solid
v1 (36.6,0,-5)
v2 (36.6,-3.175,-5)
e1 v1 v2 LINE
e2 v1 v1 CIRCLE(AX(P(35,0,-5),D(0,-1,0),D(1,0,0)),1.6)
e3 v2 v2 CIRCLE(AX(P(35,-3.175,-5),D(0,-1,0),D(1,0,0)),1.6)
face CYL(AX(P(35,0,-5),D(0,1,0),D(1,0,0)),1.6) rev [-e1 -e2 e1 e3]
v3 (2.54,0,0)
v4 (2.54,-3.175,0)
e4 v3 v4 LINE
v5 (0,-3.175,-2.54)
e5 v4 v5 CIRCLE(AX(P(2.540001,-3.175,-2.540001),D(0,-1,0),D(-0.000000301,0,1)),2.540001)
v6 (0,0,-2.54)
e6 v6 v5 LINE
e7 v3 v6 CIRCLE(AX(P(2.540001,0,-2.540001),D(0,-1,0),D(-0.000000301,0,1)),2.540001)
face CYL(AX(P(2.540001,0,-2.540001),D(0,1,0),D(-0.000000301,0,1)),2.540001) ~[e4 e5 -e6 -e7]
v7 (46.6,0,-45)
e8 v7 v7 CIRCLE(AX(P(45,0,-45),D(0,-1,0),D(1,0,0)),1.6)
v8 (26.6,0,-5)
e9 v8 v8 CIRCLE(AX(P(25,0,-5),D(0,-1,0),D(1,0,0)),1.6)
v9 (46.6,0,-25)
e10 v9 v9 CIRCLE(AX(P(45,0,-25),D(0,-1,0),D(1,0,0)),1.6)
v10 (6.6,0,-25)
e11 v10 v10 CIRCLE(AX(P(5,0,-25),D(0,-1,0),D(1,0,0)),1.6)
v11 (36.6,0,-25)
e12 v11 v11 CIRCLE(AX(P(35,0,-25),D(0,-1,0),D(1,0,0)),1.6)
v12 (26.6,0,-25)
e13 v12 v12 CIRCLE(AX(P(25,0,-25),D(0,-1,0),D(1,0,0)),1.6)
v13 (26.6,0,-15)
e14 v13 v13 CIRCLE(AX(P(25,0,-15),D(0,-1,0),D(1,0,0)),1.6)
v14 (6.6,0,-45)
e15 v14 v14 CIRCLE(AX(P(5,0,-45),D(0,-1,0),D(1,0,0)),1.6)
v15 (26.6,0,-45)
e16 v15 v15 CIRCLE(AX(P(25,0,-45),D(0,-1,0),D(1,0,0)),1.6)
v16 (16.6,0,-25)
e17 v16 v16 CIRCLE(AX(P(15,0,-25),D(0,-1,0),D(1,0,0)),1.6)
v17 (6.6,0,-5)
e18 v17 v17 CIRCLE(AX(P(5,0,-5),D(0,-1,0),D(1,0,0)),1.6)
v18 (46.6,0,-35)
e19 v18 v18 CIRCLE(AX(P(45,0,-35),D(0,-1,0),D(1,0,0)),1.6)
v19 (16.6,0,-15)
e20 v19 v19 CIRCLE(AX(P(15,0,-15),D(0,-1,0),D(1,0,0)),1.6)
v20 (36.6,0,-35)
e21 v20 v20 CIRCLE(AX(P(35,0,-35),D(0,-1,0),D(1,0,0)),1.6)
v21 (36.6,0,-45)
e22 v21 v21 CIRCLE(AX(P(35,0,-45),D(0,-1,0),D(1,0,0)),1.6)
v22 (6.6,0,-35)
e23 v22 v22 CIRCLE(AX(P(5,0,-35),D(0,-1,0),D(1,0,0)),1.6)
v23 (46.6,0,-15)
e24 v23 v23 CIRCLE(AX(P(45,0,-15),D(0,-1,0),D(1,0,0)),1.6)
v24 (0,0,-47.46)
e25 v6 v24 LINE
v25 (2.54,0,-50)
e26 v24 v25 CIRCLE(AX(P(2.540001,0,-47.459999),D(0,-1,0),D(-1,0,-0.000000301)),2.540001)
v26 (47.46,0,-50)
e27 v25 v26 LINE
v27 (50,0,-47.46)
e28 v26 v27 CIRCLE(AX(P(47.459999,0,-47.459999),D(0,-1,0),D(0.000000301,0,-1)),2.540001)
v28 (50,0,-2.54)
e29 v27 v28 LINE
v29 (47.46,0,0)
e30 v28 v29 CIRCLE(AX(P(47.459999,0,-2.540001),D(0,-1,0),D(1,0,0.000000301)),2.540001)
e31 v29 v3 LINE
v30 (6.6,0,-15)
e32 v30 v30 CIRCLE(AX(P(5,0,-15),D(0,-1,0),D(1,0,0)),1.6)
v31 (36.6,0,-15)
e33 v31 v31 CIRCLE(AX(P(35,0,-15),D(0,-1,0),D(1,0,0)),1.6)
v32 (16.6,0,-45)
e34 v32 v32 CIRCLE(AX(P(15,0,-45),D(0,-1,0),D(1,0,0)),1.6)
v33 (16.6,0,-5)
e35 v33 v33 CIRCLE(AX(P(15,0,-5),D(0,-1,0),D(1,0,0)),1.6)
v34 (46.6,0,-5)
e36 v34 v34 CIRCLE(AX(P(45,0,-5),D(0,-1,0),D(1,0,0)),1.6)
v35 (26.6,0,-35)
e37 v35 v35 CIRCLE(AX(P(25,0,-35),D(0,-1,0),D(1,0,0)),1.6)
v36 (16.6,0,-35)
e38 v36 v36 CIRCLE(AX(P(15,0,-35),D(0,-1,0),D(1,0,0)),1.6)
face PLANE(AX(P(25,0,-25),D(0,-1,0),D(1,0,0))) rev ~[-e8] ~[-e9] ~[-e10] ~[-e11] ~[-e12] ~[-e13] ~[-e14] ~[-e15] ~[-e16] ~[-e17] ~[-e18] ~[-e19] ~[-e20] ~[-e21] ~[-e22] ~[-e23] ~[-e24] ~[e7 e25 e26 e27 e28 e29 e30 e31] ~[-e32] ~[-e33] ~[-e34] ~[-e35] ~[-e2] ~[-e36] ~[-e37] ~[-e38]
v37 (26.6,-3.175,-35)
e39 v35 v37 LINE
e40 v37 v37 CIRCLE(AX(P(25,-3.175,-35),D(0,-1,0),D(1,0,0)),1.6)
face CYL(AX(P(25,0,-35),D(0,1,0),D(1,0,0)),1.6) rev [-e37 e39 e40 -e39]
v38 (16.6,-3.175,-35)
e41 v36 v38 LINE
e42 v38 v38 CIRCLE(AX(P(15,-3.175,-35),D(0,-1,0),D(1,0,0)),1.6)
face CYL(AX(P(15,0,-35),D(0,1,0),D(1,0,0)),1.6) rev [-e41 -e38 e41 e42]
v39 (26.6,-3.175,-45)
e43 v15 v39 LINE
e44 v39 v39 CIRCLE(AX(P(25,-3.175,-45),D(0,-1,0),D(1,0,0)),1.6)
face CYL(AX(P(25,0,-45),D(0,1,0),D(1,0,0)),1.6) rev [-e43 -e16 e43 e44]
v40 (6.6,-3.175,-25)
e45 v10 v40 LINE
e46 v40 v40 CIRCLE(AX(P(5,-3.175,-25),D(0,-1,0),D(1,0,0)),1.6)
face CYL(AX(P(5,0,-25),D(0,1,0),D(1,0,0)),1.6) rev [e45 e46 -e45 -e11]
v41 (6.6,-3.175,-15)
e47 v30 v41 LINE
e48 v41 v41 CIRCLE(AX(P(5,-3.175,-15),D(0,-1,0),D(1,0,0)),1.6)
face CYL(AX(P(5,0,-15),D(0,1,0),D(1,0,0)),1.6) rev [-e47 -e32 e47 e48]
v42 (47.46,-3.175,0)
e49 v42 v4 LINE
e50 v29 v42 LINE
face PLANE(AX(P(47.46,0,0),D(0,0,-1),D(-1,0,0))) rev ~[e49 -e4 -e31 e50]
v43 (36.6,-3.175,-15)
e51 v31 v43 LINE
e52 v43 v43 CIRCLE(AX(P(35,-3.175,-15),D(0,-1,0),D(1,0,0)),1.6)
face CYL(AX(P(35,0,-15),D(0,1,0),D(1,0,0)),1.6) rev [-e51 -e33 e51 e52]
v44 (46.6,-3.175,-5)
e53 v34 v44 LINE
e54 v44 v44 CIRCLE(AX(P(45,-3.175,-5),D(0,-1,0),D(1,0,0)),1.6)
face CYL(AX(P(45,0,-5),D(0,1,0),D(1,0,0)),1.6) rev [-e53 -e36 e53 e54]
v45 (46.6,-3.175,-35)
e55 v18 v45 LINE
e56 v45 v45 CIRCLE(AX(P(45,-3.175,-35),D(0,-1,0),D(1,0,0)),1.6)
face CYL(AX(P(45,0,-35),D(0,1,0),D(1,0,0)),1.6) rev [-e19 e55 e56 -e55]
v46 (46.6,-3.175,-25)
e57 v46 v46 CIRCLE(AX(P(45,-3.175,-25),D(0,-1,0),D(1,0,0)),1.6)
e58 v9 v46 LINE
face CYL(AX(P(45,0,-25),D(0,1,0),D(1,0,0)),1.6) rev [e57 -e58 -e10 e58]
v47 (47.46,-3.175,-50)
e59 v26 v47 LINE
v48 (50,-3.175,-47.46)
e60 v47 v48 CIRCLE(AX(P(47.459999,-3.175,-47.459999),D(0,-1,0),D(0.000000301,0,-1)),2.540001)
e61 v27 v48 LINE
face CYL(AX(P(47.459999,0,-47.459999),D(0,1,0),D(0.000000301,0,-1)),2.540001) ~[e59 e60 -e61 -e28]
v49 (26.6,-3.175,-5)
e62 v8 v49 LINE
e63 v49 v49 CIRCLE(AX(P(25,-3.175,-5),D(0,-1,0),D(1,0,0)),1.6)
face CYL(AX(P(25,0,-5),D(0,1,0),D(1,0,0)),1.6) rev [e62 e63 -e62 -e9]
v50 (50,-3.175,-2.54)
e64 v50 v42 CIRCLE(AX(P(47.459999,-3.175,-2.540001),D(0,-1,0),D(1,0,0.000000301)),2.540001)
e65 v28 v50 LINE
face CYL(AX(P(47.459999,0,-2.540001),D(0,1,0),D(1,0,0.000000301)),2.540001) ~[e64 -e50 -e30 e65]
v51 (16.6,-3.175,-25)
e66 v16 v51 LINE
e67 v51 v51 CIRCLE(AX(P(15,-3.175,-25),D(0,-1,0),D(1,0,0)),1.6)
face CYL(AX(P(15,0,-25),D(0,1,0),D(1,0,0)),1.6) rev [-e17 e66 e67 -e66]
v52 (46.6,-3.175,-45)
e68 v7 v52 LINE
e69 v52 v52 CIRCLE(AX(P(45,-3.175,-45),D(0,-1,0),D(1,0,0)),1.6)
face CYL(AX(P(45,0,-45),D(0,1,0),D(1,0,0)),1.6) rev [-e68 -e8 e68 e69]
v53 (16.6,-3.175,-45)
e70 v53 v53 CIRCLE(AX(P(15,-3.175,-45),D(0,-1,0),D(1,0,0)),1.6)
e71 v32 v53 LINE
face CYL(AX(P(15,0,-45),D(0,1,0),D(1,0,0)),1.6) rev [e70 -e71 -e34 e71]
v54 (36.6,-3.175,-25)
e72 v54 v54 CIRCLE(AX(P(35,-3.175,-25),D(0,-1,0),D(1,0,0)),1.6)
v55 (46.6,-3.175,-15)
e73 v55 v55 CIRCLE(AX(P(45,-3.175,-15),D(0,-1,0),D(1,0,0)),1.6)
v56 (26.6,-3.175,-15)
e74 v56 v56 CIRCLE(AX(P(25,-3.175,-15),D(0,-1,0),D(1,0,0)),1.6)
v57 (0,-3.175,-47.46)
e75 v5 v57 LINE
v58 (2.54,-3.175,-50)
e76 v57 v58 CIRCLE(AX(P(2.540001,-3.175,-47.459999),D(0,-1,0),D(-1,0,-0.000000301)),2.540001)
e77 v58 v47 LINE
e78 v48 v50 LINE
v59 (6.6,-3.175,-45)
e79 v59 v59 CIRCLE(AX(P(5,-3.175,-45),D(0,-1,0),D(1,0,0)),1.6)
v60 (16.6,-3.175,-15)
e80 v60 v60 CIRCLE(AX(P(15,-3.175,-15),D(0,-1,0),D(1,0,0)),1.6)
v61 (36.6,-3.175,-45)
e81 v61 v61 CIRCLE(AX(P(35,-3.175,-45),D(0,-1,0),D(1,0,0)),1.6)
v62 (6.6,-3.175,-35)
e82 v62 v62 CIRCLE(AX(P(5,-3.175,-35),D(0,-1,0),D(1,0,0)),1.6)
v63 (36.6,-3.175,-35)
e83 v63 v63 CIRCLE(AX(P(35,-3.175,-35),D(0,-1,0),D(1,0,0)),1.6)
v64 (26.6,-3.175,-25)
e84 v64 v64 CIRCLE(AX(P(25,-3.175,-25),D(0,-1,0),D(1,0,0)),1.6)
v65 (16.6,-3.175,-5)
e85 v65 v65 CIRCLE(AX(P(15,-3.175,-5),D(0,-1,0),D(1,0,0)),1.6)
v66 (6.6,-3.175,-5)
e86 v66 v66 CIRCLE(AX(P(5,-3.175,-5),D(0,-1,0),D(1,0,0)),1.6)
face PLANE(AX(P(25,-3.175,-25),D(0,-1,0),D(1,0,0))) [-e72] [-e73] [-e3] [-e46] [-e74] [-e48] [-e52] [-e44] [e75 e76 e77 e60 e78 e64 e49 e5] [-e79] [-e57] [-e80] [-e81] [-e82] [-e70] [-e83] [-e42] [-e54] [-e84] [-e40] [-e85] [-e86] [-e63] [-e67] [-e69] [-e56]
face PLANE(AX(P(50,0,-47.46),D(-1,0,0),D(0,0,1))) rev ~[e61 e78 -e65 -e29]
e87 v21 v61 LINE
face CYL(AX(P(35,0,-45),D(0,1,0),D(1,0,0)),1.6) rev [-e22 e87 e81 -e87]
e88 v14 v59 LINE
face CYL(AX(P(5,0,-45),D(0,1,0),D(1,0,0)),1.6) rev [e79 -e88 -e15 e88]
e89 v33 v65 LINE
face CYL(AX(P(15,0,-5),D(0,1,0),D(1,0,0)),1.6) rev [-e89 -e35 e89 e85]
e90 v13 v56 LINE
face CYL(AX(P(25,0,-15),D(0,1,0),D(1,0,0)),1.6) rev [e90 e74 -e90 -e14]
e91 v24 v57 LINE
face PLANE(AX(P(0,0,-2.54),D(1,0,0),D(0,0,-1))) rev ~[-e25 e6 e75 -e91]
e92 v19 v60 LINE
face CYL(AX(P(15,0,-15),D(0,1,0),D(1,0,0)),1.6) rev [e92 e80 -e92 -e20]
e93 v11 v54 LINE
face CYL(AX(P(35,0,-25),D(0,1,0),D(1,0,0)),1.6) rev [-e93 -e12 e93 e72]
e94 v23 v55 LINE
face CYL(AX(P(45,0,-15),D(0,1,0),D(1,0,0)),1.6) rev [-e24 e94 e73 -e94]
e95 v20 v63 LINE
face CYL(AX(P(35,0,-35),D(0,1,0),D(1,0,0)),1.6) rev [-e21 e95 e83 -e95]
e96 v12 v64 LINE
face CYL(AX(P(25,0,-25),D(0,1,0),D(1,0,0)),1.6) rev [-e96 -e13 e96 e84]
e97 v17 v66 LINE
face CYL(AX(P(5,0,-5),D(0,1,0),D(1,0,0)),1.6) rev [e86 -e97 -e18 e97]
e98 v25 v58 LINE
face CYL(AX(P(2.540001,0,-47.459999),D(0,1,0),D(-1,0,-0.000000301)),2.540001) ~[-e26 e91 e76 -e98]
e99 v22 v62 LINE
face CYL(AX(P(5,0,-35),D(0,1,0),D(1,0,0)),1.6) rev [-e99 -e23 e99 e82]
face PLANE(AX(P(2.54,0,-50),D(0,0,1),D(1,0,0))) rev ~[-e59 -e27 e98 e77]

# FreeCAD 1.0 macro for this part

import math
import FreeCAD as App
import Part
import Sketcher
from FreeCAD import Vector
Q = App.Units.Quantity

doc = App.newDocument("Part")
params = doc.addObject("Spreadsheet::Sheet", "Params")
for row, (alias, value) in enumerate([
    ("sketch1_radius", "0.1 in"),
    ("pad1_length", "0.125 in"),
], start=1):
    params.set(f"A{row}", alias)
    params.set(f"B{row}", "=" + value)
    params.setAlias(f"B{row}", alias)

body = doc.addObject("PartDesign::Body", "Body")

# Sketch on XZ plane
sketch1 = doc.addObject("Sketcher::SketchObject", "Sketch")
body.addObject(sketch1)
sketch1.AttachmentSupport = (doc.XZ_Plane, [""])
sketch1.MapMode = "FlatFace"
sketch1.addGeometry(Part.LineSegment(Vector(47.5, 0, 0), Vector(2.5, 0, 0)), False)
sketch1.addGeometry(Part.ArcOfCircle(Part.Circle(Vector(2.5, -2.5, 0), Vector(0, 0, 1), 2.5), math.radians(90), math.radians(180)), False)
sketch1.addGeometry(Part.LineSegment(Vector(0, -2.5, 0), Vector(0, -47.5, 0)), False)
sketch1.addGeometry(Part.ArcOfCircle(Part.Circle(Vector(2.5, -47.5, 0), Vector(0, 0, 1), 2.5), math.radians(-180), math.radians(-90)), False)
sketch1.addGeometry(Part.LineSegment(Vector(2.5, -50, 0), Vector(47.5, -50, 0)), False)
sketch1.addGeometry(Part.ArcOfCircle(Part.Circle(Vector(47.5, -47.5, 0), Vector(0, 0, 1), 2.5), math.radians(-90), math.radians(0)), False)
sketch1.addGeometry(Part.LineSegment(Vector(50, -47.5, 0), Vector(50, -2.5, 0)), False)
sketch1.addGeometry(Part.ArcOfCircle(Part.Circle(Vector(47.5, -2.5, 0), Vector(0, 0, 1), 2.5), math.radians(0), math.radians(90)), False)
sketch1.addGeometry(Part.Circle(Vector(5, -45, 0), Vector(0, 0, 1), 1.6), False)
sketch1.addGeometry(Part.Circle(Vector(15, -45, 0), Vector(0, 0, 1), 1.6), False)
sketch1.addGeometry(Part.Circle(Vector(5, -35, 0), Vector(0, 0, 1), 1.6), False)
sketch1.addGeometry(Part.Circle(Vector(15, -35, 0), Vector(0, 0, 1), 1.6), False)
sketch1.addGeometry(Part.Circle(Vector(25, -45, 0), Vector(0, 0, 1), 1.6), False)
sketch1.addGeometry(Part.Circle(Vector(35, -45, 0), Vector(0, 0, 1), 1.6), False)
sketch1.addGeometry(Part.Circle(Vector(45, -45, 0), Vector(0, 0, 1), 1.6), False)
sketch1.addGeometry(Part.Circle(Vector(25, -35, 0), Vector(0, 0, 1), 1.6), False)
sketch1.addGeometry(Part.Circle(Vector(35, -35, 0), Vector(0, 0, 1), 1.6), False)
sketch1.addGeometry(Part.Circle(Vector(45, -35, 0), Vector(0, 0, 1), 1.6), False)
sketch1.addGeometry(Part.Circle(Vector(5, -25, 0), Vector(0, 0, 1), 1.6), False)
sketch1.addGeometry(Part.Circle(Vector(5, -15, 0), Vector(0, 0, 1), 1.6), False)
sketch1.addGeometry(Part.Circle(Vector(15, -25, 0), Vector(0, 0, 1), 1.6), False)
sketch1.addGeometry(Part.Circle(Vector(15, -15, 0), Vector(0, 0, 1), 1.6), False)
sketch1.addGeometry(Part.Circle(Vector(5, -5, 0), Vector(0, 0, 1), 1.6), False)
sketch1.addGeometry(Part.Circle(Vector(15, -5, 0), Vector(0, 0, 1), 1.6), False)
sketch1.addGeometry(Part.Circle(Vector(25, -25, 0), Vector(0, 0, 1), 1.6), False)
sketch1.addGeometry(Part.Circle(Vector(35, -25, 0), Vector(0, 0, 1), 1.6), False)
sketch1.addGeometry(Part.Circle(Vector(25, -15, 0), Vector(0, 0, 1), 1.6), False)
sketch1.addGeometry(Part.Circle(Vector(35, -15, 0), Vector(0, 0, 1), 1.6), False)
sketch1.addGeometry(Part.Circle(Vector(45, -25, 0), Vector(0, 0, 1), 1.6), False)
sketch1.addGeometry(Part.Circle(Vector(45, -15, 0), Vector(0, 0, 1), 1.6), False)
sketch1.addGeometry(Part.Circle(Vector(25, -5, 0), Vector(0, 0, 1), 1.6), False)
sketch1.addGeometry(Part.Circle(Vector(35, -5, 0), Vector(0, 0, 1), 1.6), False)
sketch1.addGeometry(Part.Circle(Vector(45, -5, 0), Vector(0, 0, 1), 1.6), False)
sketch1.addConstraint(Sketcher.Constraint("Tangent", 0, 2, 1, 1))
sketch1.addConstraint(Sketcher.Constraint("Tangent", 1, 2, 2, 1))
sketch1.addConstraint(Sketcher.Constraint("Tangent", 2, 2, 3, 1))
sketch1.addConstraint(Sketcher.Constraint("Tangent", 3, 2, 4, 1))
sketch1.addConstraint(Sketcher.Constraint("Tangent", 4, 2, 5, 1))
sketch1.addConstraint(Sketcher.Constraint("Tangent", 5, 2, 6, 1))
sketch1.addConstraint(Sketcher.Constraint("Tangent", 6, 2, 7, 1))
sketch1.addConstraint(Sketcher.Constraint("Tangent", 7, 2, 0, 1))
sketch1.addConstraint(Sketcher.Constraint("Horizontal", 0))
sketch1.addConstraint(Sketcher.Constraint("Vertical", 2))
sketch1.addConstraint(Sketcher.Constraint("Horizontal", 4))
sketch1.addConstraint(Sketcher.Constraint("Vertical", 6))
sketch1.addConstraint(Sketcher.Constraint("Equal", 1, 3))
sketch1.addConstraint(Sketcher.Constraint("Equal", 3, 5))
sketch1.addConstraint(Sketcher.Constraint("Equal", 5, 7))
sketch1.addConstraint(Sketcher.Constraint("Equal", 8, 9))
sketch1.addConstraint(Sketcher.Constraint("Equal", 9, 10))
sketch1.addConstraint(Sketcher.Constraint("Equal", 10, 11))
sketch1.addConstraint(Sketcher.Constraint("Equal", 11, 12))
sketch1.addConstraint(Sketcher.Constraint("Equal", 12, 13))
sketch1.addConstraint(Sketcher.Constraint("Equal", 13, 14))
sketch1.addConstraint(Sketcher.Constraint("Equal", 14, 15))
sketch1.addConstraint(Sketcher.Constraint("Equal", 15, 16))
sketch1.addConstraint(Sketcher.Constraint("Equal", 16, 17))
sketch1.addConstraint(Sketcher.Constraint("Equal", 17, 18))
sketch1.addConstraint(Sketcher.Constraint("Equal", 18, 19))
sketch1.addConstraint(Sketcher.Constraint("Equal", 19, 20))
sketch1.addConstraint(Sketcher.Constraint("Equal", 20, 21))
sketch1.addConstraint(Sketcher.Constraint("Equal", 21, 22))
sketch1.addConstraint(Sketcher.Constraint("Equal", 22, 23))
sketch1.addConstraint(Sketcher.Constraint("Equal", 23, 24))
sketch1.addConstraint(Sketcher.Constraint("Equal", 24, 25))
sketch1.addConstraint(Sketcher.Constraint("Equal", 25, 26))
sketch1.addConstraint(Sketcher.Constraint("Equal", 26, 27))
sketch1.addConstraint(Sketcher.Constraint("Equal", 27, 28))
sketch1.addConstraint(Sketcher.Constraint("Equal", 28, 29))
sketch1.addConstraint(Sketcher.Constraint("Equal", 29, 30))
sketch1.addConstraint(Sketcher.Constraint("Equal", 30, 31))
sketch1.addConstraint(Sketcher.Constraint("Equal", 31, 32))
sketch1.addConstraint(Sketcher.Constraint("PointOnObject", 0, 2, -1))
sketch1.addConstraint(Sketcher.Constraint("PointOnObject", 1, 2, -2))
sketch1.addConstraint(Sketcher.Constraint("Horizontal", 8, 3, 9, 3))
sketch1.addConstraint(Sketcher.Constraint("Horizontal", 10, 3, 11, 3))
sketch1.addConstraint(Sketcher.Constraint("Horizontal", 9, 3, 12, 3))
sketch1.addConstraint(Sketcher.Constraint("Horizontal", 12, 3, 13, 3))
sketch1.addConstraint(Sketcher.Constraint("Horizontal", 13, 3, 14, 3))
sketch1.addConstraint(Sketcher.Constraint("Horizontal", 11, 3, 15, 3))
sketch1.addConstraint(Sketcher.Constraint("Horizontal", 15, 3, 16, 3))
sketch1.addConstraint(Sketcher.Constraint("Horizontal", 16, 3, 17, 3))
sketch1.addConstraint(Sketcher.Constraint("Horizontal", 18, 3, 20, 3))
sketch1.addConstraint(Sketcher.Constraint("Horizontal", 19, 3, 21, 3))
sketch1.addConstraint(Sketcher.Constraint("Horizontal", 22, 3, 23, 3))
sketch1.addConstraint(Sketcher.Constraint("Horizontal", 20, 3, 24, 3))
sketch1.addConstraint(Sketcher.Constraint("Horizontal", 24, 3, 25, 3))
sketch1.addConstraint(Sketcher.Constraint("Horizontal", 21, 3, 26, 3))
sketch1.addConstraint(Sketcher.Constraint("Horizontal", 26, 3, 27, 3))
sketch1.addConstraint(Sketcher.Constraint("Horizontal", 25, 3, 28, 3))
sketch1.addConstraint(Sketcher.Constraint("Horizontal", 27, 3, 29, 3))
sketch1.addConstraint(Sketcher.Constraint("Horizontal", 23, 3, 30, 3))
sketch1.addConstraint(Sketcher.Constraint("Horizontal", 30, 3, 31, 3))
sketch1.addConstraint(Sketcher.Constraint("Horizontal", 31, 3, 32, 3))
sketch1.addConstraint(Sketcher.Constraint("Vertical", 8, 3, 10, 3))
sketch1.addConstraint(Sketcher.Constraint("Vertical", 9, 3, 11, 3))
sketch1.addConstraint(Sketcher.Constraint("Vertical", 12, 3, 15, 3))
sketch1.addConstraint(Sketcher.Constraint("Vertical", 13, 3, 16, 3))
sketch1.addConstraint(Sketcher.Constraint("Vertical", 14, 3, 17, 3))
sketch1.addConstraint(Sketcher.Constraint("Vertical", 10, 3, 18, 3))
sketch1.addConstraint(Sketcher.Constraint("Vertical", 18, 3, 19, 3))
sketch1.addConstraint(Sketcher.Constraint("Vertical", 11, 3, 20, 3))
sketch1.addConstraint(Sketcher.Constraint("Vertical", 20, 3, 21, 3))
sketch1.addConstraint(Sketcher.Constraint("Vertical", 19, 3, 22, 3))
sketch1.addConstraint(Sketcher.Constraint("Vertical", 21, 3, 23, 3))
sketch1.addConstraint(Sketcher.Constraint("Vertical", 15, 3, 24, 3))
sketch1.addConstraint(Sketcher.Constraint("Vertical", 16, 3, 25, 3))
sketch1.addConstraint(Sketcher.Constraint("Vertical", 24, 3, 26, 3))
sketch1.addConstraint(Sketcher.Constraint("Vertical", 25, 3, 27, 3))
sketch1.addConstraint(Sketcher.Constraint("Vertical", 17, 3, 28, 3))
sketch1.addConstraint(Sketcher.Constraint("Vertical", 28, 3, 29, 3))
sketch1.addConstraint(Sketcher.Constraint("Vertical", 26, 3, 30, 3))
sketch1.addConstraint(Sketcher.Constraint("Vertical", 27, 3, 31, 3))
sketch1.addConstraint(Sketcher.Constraint("Vertical", 29, 3, 32, 3))
sketch1.addConstraint(Sketcher.Constraint("Equal", 4, 2))
sketch1.addConstraint(Sketcher.Constraint("Radius", 1, Q("0.1 in")))
sketch1.addConstraint(Sketcher.Constraint("Diameter", 8, Q("3.2 mm")))
sketch1.addConstraint(Sketcher.Constraint("DistanceX", 0, 2, 0, 1, Q("44.92 mm")))
sketch1.addConstraint(Sketcher.Constraint("DistanceX", -1, 1, 8, 3, Q("5 mm")))
sketch1.addConstraint(Sketcher.Constraint("DistanceY", 8, 3, -1, 1, Q("45 mm")))
sketch1.addConstraint(Sketcher.Constraint("DistanceX", -1, 1, 9, 3, Q("15 mm")))
sketch1.addConstraint(Sketcher.Constraint("DistanceY", 10, 3, -1, 1, Q("35 mm")))
sketch1.addConstraint(Sketcher.Constraint("DistanceX", -1, 1, 12, 3, Q("25 mm")))
sketch1.addConstraint(Sketcher.Constraint("DistanceX", -1, 1, 13, 3, Q("35 mm")))
sketch1.addConstraint(Sketcher.Constraint("DistanceX", -1, 1, 14, 3, Q("45 mm")))
sketch1.addConstraint(Sketcher.Constraint("DistanceY", 18, 3, -1, 1, Q("25 mm")))
sketch1.addConstraint(Sketcher.Constraint("DistanceY", 19, 3, -1, 1, Q("15 mm")))
sketch1.addConstraint(Sketcher.Constraint("DistanceY", 22, 3, -1, 1, Q("5 mm")))
sketch1.setExpression("Constraints[82]", "Params.sketch1_radius")
pad1 = doc.addObject("PartDesign::Pad", "Pad")
body.addObject(pad1)
pad1.Profile = sketch1
pad1.setExpression("Length", "Params.pad1_length")

doc.recompute()
